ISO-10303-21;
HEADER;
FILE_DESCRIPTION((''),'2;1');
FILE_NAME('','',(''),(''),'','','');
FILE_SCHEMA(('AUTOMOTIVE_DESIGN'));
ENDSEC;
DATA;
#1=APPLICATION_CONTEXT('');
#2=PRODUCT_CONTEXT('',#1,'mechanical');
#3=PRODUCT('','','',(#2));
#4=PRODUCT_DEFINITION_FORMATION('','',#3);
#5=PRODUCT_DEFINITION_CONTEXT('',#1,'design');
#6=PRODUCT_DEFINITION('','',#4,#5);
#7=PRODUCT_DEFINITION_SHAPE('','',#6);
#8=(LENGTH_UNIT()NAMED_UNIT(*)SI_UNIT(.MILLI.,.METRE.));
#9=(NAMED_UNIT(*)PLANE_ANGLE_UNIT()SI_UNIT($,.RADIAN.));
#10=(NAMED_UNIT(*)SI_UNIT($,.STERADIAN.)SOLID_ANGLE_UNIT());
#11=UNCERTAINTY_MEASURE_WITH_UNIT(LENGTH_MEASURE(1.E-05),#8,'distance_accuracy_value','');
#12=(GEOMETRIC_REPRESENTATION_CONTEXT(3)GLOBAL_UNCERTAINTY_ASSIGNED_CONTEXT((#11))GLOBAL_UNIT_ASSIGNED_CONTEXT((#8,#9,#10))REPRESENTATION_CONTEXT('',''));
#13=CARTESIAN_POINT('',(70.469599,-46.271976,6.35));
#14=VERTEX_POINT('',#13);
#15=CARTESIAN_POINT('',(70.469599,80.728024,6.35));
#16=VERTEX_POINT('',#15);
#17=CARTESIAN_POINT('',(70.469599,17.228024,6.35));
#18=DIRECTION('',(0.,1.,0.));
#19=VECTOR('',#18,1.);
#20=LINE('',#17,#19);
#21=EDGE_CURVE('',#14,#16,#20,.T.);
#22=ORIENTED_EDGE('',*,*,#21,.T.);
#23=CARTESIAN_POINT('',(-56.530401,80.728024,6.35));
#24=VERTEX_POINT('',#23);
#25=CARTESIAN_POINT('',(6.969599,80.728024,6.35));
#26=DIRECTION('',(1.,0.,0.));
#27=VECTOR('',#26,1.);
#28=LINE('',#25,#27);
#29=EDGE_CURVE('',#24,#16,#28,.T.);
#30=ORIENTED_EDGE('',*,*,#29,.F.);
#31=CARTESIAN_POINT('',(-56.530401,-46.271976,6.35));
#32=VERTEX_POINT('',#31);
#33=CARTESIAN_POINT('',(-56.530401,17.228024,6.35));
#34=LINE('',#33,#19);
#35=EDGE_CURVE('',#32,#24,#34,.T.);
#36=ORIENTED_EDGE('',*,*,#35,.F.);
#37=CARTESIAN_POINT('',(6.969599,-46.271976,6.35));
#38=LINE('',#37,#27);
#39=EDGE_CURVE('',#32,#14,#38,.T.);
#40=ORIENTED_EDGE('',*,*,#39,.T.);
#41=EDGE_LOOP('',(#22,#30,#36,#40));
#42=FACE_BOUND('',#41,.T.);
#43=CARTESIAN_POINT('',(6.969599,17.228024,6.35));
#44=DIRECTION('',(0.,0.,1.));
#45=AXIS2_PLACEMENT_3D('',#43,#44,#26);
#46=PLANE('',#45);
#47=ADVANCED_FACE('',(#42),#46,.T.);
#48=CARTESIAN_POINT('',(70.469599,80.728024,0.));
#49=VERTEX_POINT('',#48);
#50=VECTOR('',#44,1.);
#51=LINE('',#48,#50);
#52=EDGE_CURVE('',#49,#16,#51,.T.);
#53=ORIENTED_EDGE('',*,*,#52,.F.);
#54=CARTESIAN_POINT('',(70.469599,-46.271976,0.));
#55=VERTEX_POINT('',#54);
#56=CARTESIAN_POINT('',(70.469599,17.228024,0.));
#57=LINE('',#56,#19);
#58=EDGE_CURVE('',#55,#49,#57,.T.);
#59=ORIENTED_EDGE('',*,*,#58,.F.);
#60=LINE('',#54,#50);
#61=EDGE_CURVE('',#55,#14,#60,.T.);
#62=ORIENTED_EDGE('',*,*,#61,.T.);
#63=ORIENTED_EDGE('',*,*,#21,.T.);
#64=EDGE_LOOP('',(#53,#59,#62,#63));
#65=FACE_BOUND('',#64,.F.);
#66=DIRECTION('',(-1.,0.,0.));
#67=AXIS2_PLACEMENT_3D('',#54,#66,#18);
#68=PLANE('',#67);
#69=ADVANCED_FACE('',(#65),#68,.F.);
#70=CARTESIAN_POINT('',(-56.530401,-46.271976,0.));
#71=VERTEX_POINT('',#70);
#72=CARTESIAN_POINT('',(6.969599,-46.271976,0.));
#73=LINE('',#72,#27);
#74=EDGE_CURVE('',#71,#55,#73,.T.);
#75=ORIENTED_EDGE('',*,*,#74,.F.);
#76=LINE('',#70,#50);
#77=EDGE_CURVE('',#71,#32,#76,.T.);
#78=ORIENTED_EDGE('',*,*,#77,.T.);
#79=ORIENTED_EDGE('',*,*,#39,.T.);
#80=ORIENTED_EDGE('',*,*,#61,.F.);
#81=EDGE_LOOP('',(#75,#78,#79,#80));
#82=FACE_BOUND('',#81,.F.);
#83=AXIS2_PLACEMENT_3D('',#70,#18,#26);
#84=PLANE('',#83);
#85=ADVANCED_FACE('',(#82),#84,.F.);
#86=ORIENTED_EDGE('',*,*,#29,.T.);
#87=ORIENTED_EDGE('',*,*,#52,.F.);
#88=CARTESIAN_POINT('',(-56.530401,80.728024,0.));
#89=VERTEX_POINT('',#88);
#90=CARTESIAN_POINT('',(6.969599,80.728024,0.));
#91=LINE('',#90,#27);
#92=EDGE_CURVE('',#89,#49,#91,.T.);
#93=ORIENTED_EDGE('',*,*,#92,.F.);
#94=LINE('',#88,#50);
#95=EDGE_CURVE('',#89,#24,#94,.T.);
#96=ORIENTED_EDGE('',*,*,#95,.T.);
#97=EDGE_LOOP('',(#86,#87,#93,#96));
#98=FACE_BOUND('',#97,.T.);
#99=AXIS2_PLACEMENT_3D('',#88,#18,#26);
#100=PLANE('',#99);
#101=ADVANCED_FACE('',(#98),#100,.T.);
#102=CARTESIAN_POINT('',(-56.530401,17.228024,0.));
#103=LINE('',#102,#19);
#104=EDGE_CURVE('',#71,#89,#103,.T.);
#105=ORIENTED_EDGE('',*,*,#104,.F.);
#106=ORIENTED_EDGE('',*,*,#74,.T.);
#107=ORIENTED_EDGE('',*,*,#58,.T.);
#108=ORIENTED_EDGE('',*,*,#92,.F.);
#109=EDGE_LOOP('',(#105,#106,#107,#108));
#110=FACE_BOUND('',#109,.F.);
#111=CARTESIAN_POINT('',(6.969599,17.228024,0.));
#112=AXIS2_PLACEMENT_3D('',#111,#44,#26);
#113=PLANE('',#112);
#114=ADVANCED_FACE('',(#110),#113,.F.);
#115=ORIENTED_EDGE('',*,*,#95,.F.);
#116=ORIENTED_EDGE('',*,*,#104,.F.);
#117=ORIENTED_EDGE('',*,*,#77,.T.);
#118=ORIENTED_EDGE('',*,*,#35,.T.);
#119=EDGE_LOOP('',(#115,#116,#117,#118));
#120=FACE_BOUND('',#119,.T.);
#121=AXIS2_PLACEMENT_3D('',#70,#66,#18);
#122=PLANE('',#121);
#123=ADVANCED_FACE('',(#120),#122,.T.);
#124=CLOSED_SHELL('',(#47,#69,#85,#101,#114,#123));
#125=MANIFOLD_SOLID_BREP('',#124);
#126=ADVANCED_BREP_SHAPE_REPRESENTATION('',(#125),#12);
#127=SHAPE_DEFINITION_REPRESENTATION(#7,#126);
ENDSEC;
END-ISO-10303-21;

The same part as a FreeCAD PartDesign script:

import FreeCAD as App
import Part
import Sketcher
Q = App.Units.Quantity

doc = App.newDocument("Part")
body = doc.addObject("PartDesign::Body", "Body")

# Sketch on XY plane
sketch1 = doc.addObject("Sketcher::SketchObject", "Sketch")
body.addObject(sketch1)
sketch1.AttachmentSupport = (doc.XY_Plane, [""])
sketch1.MapMode = "FlatFace"
sketch1.addGeometry(Part.LineSegment(App.Vector(-56.530401, 80.728024, 0), App.Vector(-56.530401, -46.271976, 0)), False)
sketch1.addGeometry(Part.LineSegment(App.Vector(-56.530401, -46.271976, 0), App.Vector(70.469599, -46.271976, 0)), False)
sketch1.addGeometry(Part.LineSegment(App.Vector(70.469599, -46.271976, 0), App.Vector(70.469599, 80.728024, 0)), False)
sketch1.addGeometry(Part.LineSegment(App.Vector(70.469599, 80.728024, 0), App.Vector(-56.530401, 80.728024, 0)), False)
sketch1.addConstraint(Sketcher.Constraint("Coincident", 0, 2, 1, 1))
sketch1.addConstraint(Sketcher.Constraint("Coincident", 1, 2, 2, 1))
sketch1.addConstraint(Sketcher.Constraint("Coincident", 2, 2, 3, 1))
sketch1.addConstraint(Sketcher.Constraint("Coincident", 3, 2, 0, 1))
sketch1.addConstraint(Sketcher.Constraint("Vertical", 0))
sketch1.addConstraint(Sketcher.Constraint("Horizontal", 1))
sketch1.addConstraint(Sketcher.Constraint("Vertical", 2))
sketch1.addConstraint(Sketcher.Constraint("Horizontal", 3))
sketch1.addConstraint(Sketcher.Constraint("Equal", 3, 0))
sketch1.addConstraint(Sketcher.Constraint("DistanceX", 1, 1, 1, 2, Q("5 in")))
sketch1.addConstraint(Sketcher.Constraint("DistanceX", 0, 2, -1, 1, 56.530401))
sketch1.addConstraint(Sketcher.Constraint("DistanceY", 0, 2, -1, 1, 46.271976))
pad1 = doc.addObject("PartDesign::Pad", "Pad")
body.addObject(pad1)
pad1.Profile = sketch1
pad1.Length = Q("0.25 in")

# Sketch on XZ plane
sketch2 = doc.addObject("Sketcher::SketchObject", "Sketch001")
body.addObject(sketch2)
sketch2.AttachmentSupport = (doc.XZ_Plane, [""])
sketch2.MapMode = "FlatFace"
sketch2.AttachmentOffset = App.Placement(App.Vector(0, 0, 46.271976), App.Rotation())
sketch2.addGeometry(Part.Circle(App.Vector(-6.880401, 18.15271, 0), App.Vector(0, 0, 1), 6.35), False)
sketch2.addGeometry(Part.Circle(App.Vector(52.549634, 18.415, 0), App.Vector(0, 0, 1), 3.175), False)
sketch2.addConstraint(Sketcher.Constraint("Diameter", 0, Q("0.5 in")))
sketch2.addConstraint(Sketcher.Constraint("Diameter", 1, Q("0.25 in")))
sketch2.addConstraint(Sketcher.Constraint("DistanceY", -1, 1, 1, 3, Q("0.725 in")))
sketch2.addConstraint(Sketcher.Constraint("DistanceX", 0, 3, -1, 1, 6.880401))
sketch2.addConstraint(Sketcher.Constraint("DistanceY", -1, 1, 0, 3, 18.15271))
sketch2.addConstraint(Sketcher.Constraint("DistanceX", -1, 1, 1, 3, 52.549634))
pocket1 = doc.addObject("PartDesign::Pocket", "Pocket")
body.addObject(pocket1)
pocket1.Profile = sketch2
pocket1.Length = Q("10 in")

doc.recompute()
